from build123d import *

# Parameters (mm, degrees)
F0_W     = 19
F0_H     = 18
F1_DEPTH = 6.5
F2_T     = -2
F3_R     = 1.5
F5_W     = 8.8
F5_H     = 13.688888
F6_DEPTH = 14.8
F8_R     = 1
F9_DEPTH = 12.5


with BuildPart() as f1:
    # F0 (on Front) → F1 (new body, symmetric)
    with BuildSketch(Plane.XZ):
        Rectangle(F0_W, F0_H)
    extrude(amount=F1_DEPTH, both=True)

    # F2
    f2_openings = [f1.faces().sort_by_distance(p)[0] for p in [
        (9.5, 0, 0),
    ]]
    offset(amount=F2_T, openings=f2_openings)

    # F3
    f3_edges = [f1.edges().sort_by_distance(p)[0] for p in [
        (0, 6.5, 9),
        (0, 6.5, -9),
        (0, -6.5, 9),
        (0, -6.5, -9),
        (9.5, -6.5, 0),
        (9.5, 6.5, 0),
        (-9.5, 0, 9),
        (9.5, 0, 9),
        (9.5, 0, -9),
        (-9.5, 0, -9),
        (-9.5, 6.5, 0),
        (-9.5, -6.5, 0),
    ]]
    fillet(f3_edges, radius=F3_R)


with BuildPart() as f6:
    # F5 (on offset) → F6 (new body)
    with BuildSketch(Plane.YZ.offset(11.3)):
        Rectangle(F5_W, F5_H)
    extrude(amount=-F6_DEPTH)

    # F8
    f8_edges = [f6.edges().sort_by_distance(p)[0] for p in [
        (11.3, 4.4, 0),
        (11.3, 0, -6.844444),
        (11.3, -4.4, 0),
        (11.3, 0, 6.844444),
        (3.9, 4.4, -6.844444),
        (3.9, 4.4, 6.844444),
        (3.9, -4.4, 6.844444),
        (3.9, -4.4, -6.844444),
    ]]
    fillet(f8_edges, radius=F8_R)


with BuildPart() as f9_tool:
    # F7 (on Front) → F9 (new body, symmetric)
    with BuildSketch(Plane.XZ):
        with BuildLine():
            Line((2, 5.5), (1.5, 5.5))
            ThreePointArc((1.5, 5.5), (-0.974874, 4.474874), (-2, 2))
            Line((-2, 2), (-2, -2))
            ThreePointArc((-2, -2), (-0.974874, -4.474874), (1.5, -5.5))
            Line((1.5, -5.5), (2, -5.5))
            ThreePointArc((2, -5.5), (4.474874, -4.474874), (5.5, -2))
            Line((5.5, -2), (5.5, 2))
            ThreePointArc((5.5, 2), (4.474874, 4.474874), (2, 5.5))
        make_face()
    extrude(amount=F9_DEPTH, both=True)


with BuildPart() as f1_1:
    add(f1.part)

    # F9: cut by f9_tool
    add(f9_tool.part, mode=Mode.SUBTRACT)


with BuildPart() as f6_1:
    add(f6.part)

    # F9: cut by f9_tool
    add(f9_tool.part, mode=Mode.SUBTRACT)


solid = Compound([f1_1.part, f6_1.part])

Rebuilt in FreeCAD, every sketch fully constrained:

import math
import FreeCAD as App
import Part
import Sketcher


def edges_at(feature, points):
    """Names of the edges that pass closest to the given points."""
    edges = feature.Shape.Edges
    near = lambda p: min(range(len(edges)), key=lambda i: edges[i].distToShape(Part.Vertex(*p))[0])
    return sorted({f"Edge{near(p) + 1}" for p in points})


def faces_at(feature, points):
    """Names of the faces that lie closest to the given points."""
    faces = feature.Shape.Faces
    near = lambda p: min(range(len(faces)), key=lambda i: faces[i].distToShape(Part.Vertex(*p))[0])
    return sorted({f"Face{near(p) + 1}" for p in points})


def add_polygon(sketch, points):
    """Adds a closed chain of lines whose ends are joined by coincident constraints."""
    first, n = sketch.GeometryCount, len(points)
    for a, b in zip(points, points[1:] + points[:1]):
        sketch.addGeometry(Part.LineSegment(App.Vector(*a, 0), App.Vector(*b, 0)), False)
    for i in range(n):
        sketch.addConstraint(Sketcher.Constraint("Coincident", first + i, 2, first + (i + 1) % n, 1))

doc = App.newDocument("Part")
body = doc.addObject("PartDesign::Body", "Body")

sketch1 = body.newObject("Sketcher::SketchObject", "Sketch")
sketch1.AttachmentSupport = (doc.getObject("XZ_Plane"), [""])
sketch1.MapMode = "FlatFace"
add_polygon(sketch1, [(-9.5, 9), (-9.5, -9), (9.5, -9), (9.5, 9)])
sketch1.addConstraint([
    Sketcher.Constraint("Vertical", 0),
    Sketcher.Constraint("Horizontal", 1),
    Sketcher.Constraint("Vertical", 2),
    Sketcher.Constraint("Horizontal", 3),
    Sketcher.Constraint("Symmetric", 0, 2, 2, 2, -1, 1),
    Sketcher.Constraint("DistanceX", 1, 1, 1, 2, 19.0),
    Sketcher.Constraint("DistanceY", 0, 2, 0, 1, 18.0),
])
pad1 = body.newObject("PartDesign::Pad", "Pad")
pad1.Profile = sketch1
pad1.Length = 13
pad1.Midplane = True
doc.recompute()

thickness = body.newObject("PartDesign::Thickness", "Thickness")
thickness.Base = (pad1, faces_at(pad1, [(9.5, 0, 0)]))
thickness.Value = 2
thickness.Reversed = True
thickness.Join = "Arc"
doc.recompute()

fillet = body.newObject("PartDesign::Fillet", "Fillet")
fillet.Base = (thickness, edges_at(thickness, [
    (0, 6.5, 9),
    (0, 6.5, -9),
    (0, -6.5, 9),
    (0, -6.5, -9),
    (9.5, -6.5, 0),
    (9.5, 6.5, 0),
    (-9.5, 0, 9),
    (9.5, 0, 9),
    (9.5, 0, -9),
    (-9.5, 0, -9),
    (-9.5, 6.5, 0),
    (-9.5, -6.5, 0),
]))
fillet.Radius = 1.5
body2 = doc.addObject("PartDesign::Body", "Body001")

sketch2 = body2.newObject("Sketcher::SketchObject", "Sketch001")
sketch2.AttachmentSupport = (doc.getObject("YZ_Plane001"), [""])
sketch2.MapMode = "FlatFace"
sketch2.AttachmentOffset = App.Placement(App.Vector(0, 0, 11.3), App.Rotation())
add_polygon(sketch2, [(-4.4, 6.844444), (-4.4, -6.844444), (4.4, -6.844444), (4.4, 6.844444)])
sketch2.addConstraint([
    Sketcher.Constraint("Vertical", 0),
    Sketcher.Constraint("Horizontal", 1),
    Sketcher.Constraint("Vertical", 2),
    Sketcher.Constraint("Horizontal", 3),
    Sketcher.Constraint("Symmetric", 0, 2, 2, 2, -1, 1),
    Sketcher.Constraint("DistanceX", 1, 1, 1, 2, 8.8),
    Sketcher.Constraint("DistanceY", 0, 2, 0, 1, 13.688888),
])
pad2 = body2.newObject("PartDesign::Pad", "Pad001")
pad2.Profile = sketch2
pad2.Length = 14.8
pad2.Reversed = True
doc.recompute()

fillet2 = body2.newObject("PartDesign::Fillet", "Fillet001")
fillet2.Base = (pad2, edges_at(pad2, [
    (11.3, 4.4, 0),
    (11.3, 0, -6.844),
    (11.3, -4.4, 0),
    (11.3, 0, 6.844),
    (3.9, 4.4, -6.844),
    (3.9, 4.4, 6.844),
    (3.9, -4.4, 6.844),
    (3.9, -4.4, -6.844),
]))
fillet2.Radius = 1
body3 = doc.addObject("PartDesign::Body", "Body002")

sketch3 = body3.newObject("Sketcher::SketchObject", "Sketch002")
sketch3.AttachmentSupport = (doc.getObject("XZ_Plane002"), [""])
sketch3.MapMode = "FlatFace"
sketch3.addGeometry([
    Part.LineSegment(App.Vector(2, 5.5, 0), App.Vector(1.5, 5.5, 0)),
    Part.ArcOfCircle(Part.Circle(App.Vector(1.499999, 2.000001, 0), App.Vector(0, 0, 1), 3.499999), math.radians(89.999985), math.radians(180.000015)),
    Part.LineSegment(App.Vector(-2, 2, 0), App.Vector(-2, -2, 0)),
    Part.ArcOfCircle(Part.Circle(App.Vector(1.499999, -2.000001, 0), App.Vector(0, 0, 1), 3.499999), math.radians(179.999985), math.radians(270.000015)),
    Part.LineSegment(App.Vector(1.5, -5.5, 0), App.Vector(2, -5.5, 0)),
    Part.ArcOfCircle(Part.Circle(App.Vector(2.000001, -2.000001, 0), App.Vector(0, 0, 1), 3.499999), math.radians(-90.000015), math.radians(0.000015)),
    Part.LineSegment(App.Vector(5.5, -2, 0), App.Vector(5.5, 2, 0)),
    Part.ArcOfCircle(Part.Circle(App.Vector(2.000001, 2.000001, 0), App.Vector(0, 0, 1), 3.499999), math.radians(-0.000015), math.radians(90.000015)),
], False)
sketch3.addConstraint([
    Sketcher.Constraint("Tangent", 0, 2, 1, 1),
    Sketcher.Constraint("Tangent", 1, 2, 2, 1),
    Sketcher.Constraint("Tangent", 2, 2, 3, 1),
    Sketcher.Constraint("Tangent", 3, 2, 4, 1),
    Sketcher.Constraint("Tangent", 4, 2, 5, 1),
    Sketcher.Constraint("Tangent", 5, 2, 6, 1),
    Sketcher.Constraint("Tangent", 6, 2, 7, 1),
    Sketcher.Constraint("Tangent", 7, 2, 0, 1),
    Sketcher.Constraint("Horizontal", 0),
    Sketcher.Constraint("Vertical", 2),
    Sketcher.Constraint("Horizontal", 4),
    Sketcher.Constraint("Vertical", 6),
    Sketcher.Constraint("Equal", 1, 3),
    Sketcher.Constraint("Equal", 3, 5),
    Sketcher.Constraint("Equal", 5, 7),
    Sketcher.Constraint("Radius", 1, 3.499999),
    Sketcher.Constraint("DistanceY", 2, 2, 2, 1, 4.0),
    Sketcher.Constraint("DistanceX", 0, 2, 0, 1, 0.5),
    Sketcher.Constraint("DistanceY", -1, 1, 1, 3, 2.000001),
    Sketcher.Constraint("DistanceX", -1, 1, 5, 3, 2.000001),
])
pad3 = body3.newObject("PartDesign::Pad", "Pad002")
pad3.Profile = sketch3
pad3.Length = 25
pad3.Midplane = True
doc.recompute()

body4 = doc.addObject("PartDesign::Body", "Body003")
body4.BaseFeature = body3
boolean = body.newObject("PartDesign::Boolean", "Boolean")
boolean.Type = "Cut"
boolean.addObjects([body4])
doc.recompute()

boolean2 = body2.newObject("PartDesign::Boolean", "Boolean001")
boolean2.Type = "Cut"
boolean2.addObjects([body3])

doc.recompute()
